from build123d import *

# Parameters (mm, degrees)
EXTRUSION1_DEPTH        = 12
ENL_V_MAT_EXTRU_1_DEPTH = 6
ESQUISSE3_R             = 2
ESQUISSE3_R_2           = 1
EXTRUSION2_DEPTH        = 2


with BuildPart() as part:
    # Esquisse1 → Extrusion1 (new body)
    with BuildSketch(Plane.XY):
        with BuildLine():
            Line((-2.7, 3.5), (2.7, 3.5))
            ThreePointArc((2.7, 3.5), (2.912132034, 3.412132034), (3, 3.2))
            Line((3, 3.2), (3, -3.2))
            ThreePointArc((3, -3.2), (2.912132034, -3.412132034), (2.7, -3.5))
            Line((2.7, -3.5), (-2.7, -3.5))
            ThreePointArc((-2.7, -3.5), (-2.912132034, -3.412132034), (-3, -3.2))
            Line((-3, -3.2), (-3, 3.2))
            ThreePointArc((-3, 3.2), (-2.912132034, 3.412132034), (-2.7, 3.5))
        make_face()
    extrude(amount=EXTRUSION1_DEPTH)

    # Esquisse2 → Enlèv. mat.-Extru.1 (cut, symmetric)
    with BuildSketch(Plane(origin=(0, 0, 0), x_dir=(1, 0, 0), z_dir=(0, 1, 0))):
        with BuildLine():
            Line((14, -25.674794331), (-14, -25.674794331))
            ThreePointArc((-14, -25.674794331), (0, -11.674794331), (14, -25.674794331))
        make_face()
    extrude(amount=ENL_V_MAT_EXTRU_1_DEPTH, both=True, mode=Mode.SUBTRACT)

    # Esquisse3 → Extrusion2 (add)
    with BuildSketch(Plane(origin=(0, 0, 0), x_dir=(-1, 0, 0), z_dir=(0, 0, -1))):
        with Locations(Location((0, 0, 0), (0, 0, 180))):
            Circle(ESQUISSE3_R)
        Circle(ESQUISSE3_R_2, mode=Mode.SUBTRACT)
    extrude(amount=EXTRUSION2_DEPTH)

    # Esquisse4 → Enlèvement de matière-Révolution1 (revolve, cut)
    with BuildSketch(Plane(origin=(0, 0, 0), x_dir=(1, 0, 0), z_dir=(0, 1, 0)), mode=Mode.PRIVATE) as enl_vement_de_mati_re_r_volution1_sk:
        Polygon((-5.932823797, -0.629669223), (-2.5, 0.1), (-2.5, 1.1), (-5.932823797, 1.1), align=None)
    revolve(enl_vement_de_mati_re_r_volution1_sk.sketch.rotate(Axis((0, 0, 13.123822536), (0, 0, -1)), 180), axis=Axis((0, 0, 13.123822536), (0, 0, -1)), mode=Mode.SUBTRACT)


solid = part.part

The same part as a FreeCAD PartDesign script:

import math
import FreeCAD as App
import Part
import Sketcher
Q = App.Units.Quantity

doc = App.newDocument("Part")
body = doc.addObject("PartDesign::Body", "Body")

sketch1 = body.newObject("Sketcher::SketchObject", "Sketch")
sketch1.AttachmentSupport = (doc.getObject("XY_Plane"), [""])
sketch1.MapMode = "FlatFace"
sketch1.addGeometry([
    Part.LineSegment(App.Vector(2.7, 3.5, 0), App.Vector(-2.7, 3.5, 0)),
    Part.ArcOfCircle(Part.Circle(App.Vector(-2.7, 3.2, 0), App.Vector(0, 0, 1), 0.3), math.radians(90), math.radians(180)),
    Part.LineSegment(App.Vector(-3, 3.2, 0), App.Vector(-3, -3.2, 0)),
    Part.ArcOfCircle(Part.Circle(App.Vector(-2.7, -3.2, 0), App.Vector(0, 0, 1), 0.3), math.radians(-180), math.radians(-90)),
    Part.LineSegment(App.Vector(-2.7, -3.5, 0), App.Vector(2.7, -3.5, 0)),
    Part.ArcOfCircle(Part.Circle(App.Vector(2.7, -3.2, 0), App.Vector(0, 0, 1), 0.3), math.radians(-90), math.radians(0)),
    Part.LineSegment(App.Vector(3, -3.2, 0), App.Vector(3, 3.2, 0)),
    Part.ArcOfCircle(Part.Circle(App.Vector(2.7, 3.2, 0), App.Vector(0, 0, 1), 0.3), math.radians(0), math.radians(90)),
], False)
sketch1.addConstraint([
    Sketcher.Constraint("Tangent", 0, 2, 1, 1),
    Sketcher.Constraint("Tangent", 1, 2, 2, 1),
    Sketcher.Constraint("Tangent", 2, 2, 3, 1),
    Sketcher.Constraint("Tangent", 3, 2, 4, 1),
    Sketcher.Constraint("Tangent", 4, 2, 5, 1),
    Sketcher.Constraint("Tangent", 5, 2, 6, 1),
    Sketcher.Constraint("Tangent", 6, 2, 7, 1),
    Sketcher.Constraint("Tangent", 7, 2, 0, 1),
    Sketcher.Constraint("Horizontal", 0),
    Sketcher.Constraint("Vertical", 2),
    Sketcher.Constraint("Horizontal", 4),
    Sketcher.Constraint("Vertical", 6),
    Sketcher.Constraint("Equal", 1, 3),
    Sketcher.Constraint("Equal", 3, 5),
    Sketcher.Constraint("Equal", 5, 7),
    Sketcher.Constraint("Symmetric", 1, 3, 5, 3, -1, 1),
    Sketcher.Constraint("Radius", 1, Q("0.3 mm")),
    Sketcher.Constraint("DistanceX", 0, 2, 0, 1, Q("5.4 mm")),
    Sketcher.Constraint("DistanceY", 2, 2, 2, 1, Q("6.4 mm")),
])
pad1 = body.newObject("PartDesign::Pad", "Pad")
pad1.Profile = sketch1
pad1.Length = 12

sketch2 = body.newObject("Sketcher::SketchObject", "Sketch001")
sketch2.AttachmentSupport = (doc.getObject("XZ_Plane"), [""])
sketch2.MapMode = "FlatFace"
sketch2.addGeometry([
    Part.LineSegment(App.Vector(-14, 26, 0), App.Vector(14, 26, 0)),
    Part.ArcOfCircle(Part.Circle(App.Vector(0, 26, 0), App.Vector(0, 0, 1), 14), math.radians(180), math.radians(360)),
], False)
sketch2.addConstraint([
    Sketcher.Constraint("Coincident", 0, 1, 1, 1),
    Sketcher.Constraint("Coincident", 1, 2, 0, 2),
    Sketcher.Constraint("Horizontal", 0),
    Sketcher.Constraint("PointOnObject", 1, 3, -2),
    Sketcher.Constraint("Horizontal", 1, 3, 0, 1),
    Sketcher.Constraint("Radius", 1, Q("14 mm")),
    Sketcher.Constraint("DistanceY", -1, 1, 1, 3, Q("25.674794 mm")),
])
pocket1 = body.newObject("PartDesign::Pocket", "Pocket")
pocket1.Profile = sketch2
pocket1.Length = 12
pocket1.Midplane = True

sketch3 = body.newObject("Sketcher::SketchObject", "Sketch002")
sketch3.AttachmentSupport = (doc.getObject("XY_Plane"), [""])
sketch3.MapMode = "FlatFace"
sketch3.addGeometry([
    Part.Circle(App.Vector(0, 0, 0), App.Vector(0, 0, 1), 2),
    Part.Circle(App.Vector(0, 0, 0), App.Vector(0, 0, 1), 1),
], False)
sketch3.addConstraint([
    Sketcher.Constraint("Coincident", 0, 3, -1, 1),
    Sketcher.Constraint("Coincident", 1, 3, -1, 1),
    Sketcher.Constraint("Diameter", 0, Q("4 mm")),
    Sketcher.Constraint("Diameter", 1, Q("2 mm")),
])
pad2 = body.newObject("PartDesign::Pad", "Pad001")
pad2.Profile = sketch3
pad2.Length = 2
pad2.Reversed = True

sketch4 = body.newObject("Sketcher::SketchObject", "Sketch003")
sketch4.AttachmentSupport = (doc.getObject("XZ_Plane"), [""])
sketch4.MapMode = "FlatFace"
sketch4.addGeometry([
    Part.LineSegment(App.Vector(-5.9, 0.6, 0), App.Vector(-2.5, -0.1, 0)),
    Part.LineSegment(App.Vector(-2.5, -0.1, 0), App.Vector(-2.5, -1.1, 0)),
    Part.LineSegment(App.Vector(-2.5, -1.1, 0), App.Vector(-5.9, -1.1, 0)),
    Part.LineSegment(App.Vector(-5.9, -1.1, 0), App.Vector(-5.9, 0.6, 0)),
], False)
sketch4.addConstraint([
    Sketcher.Constraint("Coincident", 0, 2, 1, 1),
    Sketcher.Constraint("Coincident", 1, 2, 2, 1),
    Sketcher.Constraint("Coincident", 2, 2, 3, 1),
    Sketcher.Constraint("Coincident", 3, 2, 0, 1),
    Sketcher.Constraint("Vertical", 1),
    Sketcher.Constraint("Horizontal", 2),
    Sketcher.Constraint("Vertical", 3),
    Sketcher.Constraint("DistanceY", 1, 2, 1, 1, Q("1 mm")),
    Sketcher.Constraint("Angle", 0, Q("-12 deg")),
    Sketcher.Constraint("DistanceX", 0, 2, -1, 1, Q("2.5 mm")),
    Sketcher.Constraint("DistanceY", 0, 2, -1, 1, Q("0.1 mm")),
    Sketcher.Constraint("DistanceY", 3, 1, 3, 2, Q("1.729669 mm")),
])
groove = body.newObject("PartDesign::Groove", "Groove")
groove.Profile = sketch4
groove.ReferenceAxis = (sketch4, ["V_Axis"])
groove.Angle = 360

doc.recompute()
